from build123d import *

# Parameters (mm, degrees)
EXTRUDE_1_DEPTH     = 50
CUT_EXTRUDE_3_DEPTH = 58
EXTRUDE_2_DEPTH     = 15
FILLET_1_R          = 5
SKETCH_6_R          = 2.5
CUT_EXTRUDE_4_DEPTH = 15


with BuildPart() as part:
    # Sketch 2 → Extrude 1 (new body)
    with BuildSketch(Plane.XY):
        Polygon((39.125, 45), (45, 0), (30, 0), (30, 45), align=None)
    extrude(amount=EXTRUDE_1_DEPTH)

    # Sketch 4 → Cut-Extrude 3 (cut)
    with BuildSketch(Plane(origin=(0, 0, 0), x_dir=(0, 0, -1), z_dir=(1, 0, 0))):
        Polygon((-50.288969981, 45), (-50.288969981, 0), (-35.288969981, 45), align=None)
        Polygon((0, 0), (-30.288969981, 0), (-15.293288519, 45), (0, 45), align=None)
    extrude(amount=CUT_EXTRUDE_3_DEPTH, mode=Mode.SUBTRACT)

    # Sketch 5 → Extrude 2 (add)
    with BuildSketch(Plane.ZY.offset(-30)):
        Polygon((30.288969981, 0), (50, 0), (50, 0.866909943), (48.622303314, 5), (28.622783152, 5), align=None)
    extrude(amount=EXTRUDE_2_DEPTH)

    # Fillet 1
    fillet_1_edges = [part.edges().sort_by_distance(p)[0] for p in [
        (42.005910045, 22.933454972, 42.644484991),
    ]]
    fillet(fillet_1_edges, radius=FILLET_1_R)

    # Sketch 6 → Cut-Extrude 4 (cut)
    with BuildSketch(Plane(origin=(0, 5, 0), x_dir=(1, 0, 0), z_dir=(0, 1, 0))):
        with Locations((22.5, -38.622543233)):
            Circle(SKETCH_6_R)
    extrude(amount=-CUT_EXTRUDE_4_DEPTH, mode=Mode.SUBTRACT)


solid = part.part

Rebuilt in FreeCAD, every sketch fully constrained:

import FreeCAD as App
import Part
import Sketcher

V = App.Vector
Q = App.Units.Quantity


def edges_at(feature, points):
    """Names of the edges that pass closest to the given points."""
    edges = feature.Shape.Edges
    near = lambda p: min(range(len(edges)), key=lambda i: edges[i].distToShape(Part.Vertex(*p))[0])
    return sorted({f"Edge{near(p) + 1}" for p in points})

doc = App.newDocument("Part")
body = doc.addObject("PartDesign::Body", "Body")

# Sketch on XY plane
sketch1 = doc.addObject("Sketcher::SketchObject", "Sketch")
body.addObject(sketch1)
sketch1.AttachmentSupport = (doc.XY_Plane, [""])
sketch1.MapMode = "FlatFace"
sketch1.addGeometry(Part.LineSegment(V(45, 0, 0), V(39, 45, 0)), False)
sketch1.addGeometry(Part.LineSegment(V(39, 45, 0), V(30, 45, 0)), False)
sketch1.addGeometry(Part.LineSegment(V(30, 45, 0), V(30, 0, 0)), False)
sketch1.addGeometry(Part.LineSegment(V(30, 0, 0), V(45, 0, 0)), False)
sketch1.addConstraint(Sketcher.Constraint("Coincident", 0, 2, 1, 1))
sketch1.addConstraint(Sketcher.Constraint("Coincident", 1, 2, 2, 1))
sketch1.addConstraint(Sketcher.Constraint("Coincident", 2, 2, 3, 1))
sketch1.addConstraint(Sketcher.Constraint("Coincident", 3, 2, 0, 1))
sketch1.addConstraint(Sketcher.Constraint("Horizontal", 1))
sketch1.addConstraint(Sketcher.Constraint("Vertical", 2))
sketch1.addConstraint(Sketcher.Constraint("Horizontal", 3))
sketch1.addConstraint(Sketcher.Constraint("PointOnObject", 2, 2, -1))
sketch1.addConstraint(Sketcher.Constraint("DistanceX", 3, 1, 3, 2, 15.0))
sketch1.addConstraint(Sketcher.Constraint("DistanceY", 2, 2, 2, 1, 45.0))
sketch1.addConstraint(Sketcher.Constraint("DistanceX", -1, 1, 1, 2, 30.0))
sketch1.addConstraint(Sketcher.Constraint("DistanceX", 1, 2, 1, 1, 9.125))
pad1 = doc.addObject("PartDesign::Pad", "Pad")
body.addObject(pad1)
pad1.Profile = sketch1
pad1.Length = 50

# Sketch on YZ plane
sketch2 = doc.addObject("Sketcher::SketchObject", "Sketch001")
body.addObject(sketch2)
sketch2.AttachmentSupport = (doc.YZ_Plane, [""])
sketch2.MapMode = "FlatFace"
sketch2.addGeometry(Part.LineSegment(V(45, 50, 0), V(0, 50, 0)), False)
sketch2.addGeometry(Part.LineSegment(V(0, 50, 0), V(45, 35, 0)), False)
sketch2.addGeometry(Part.LineSegment(V(45, 35, 0), V(45, 50, 0)), False)
sketch2.addGeometry(Part.LineSegment(V(0, 30, 0), V(0, 0, 0)), False)
sketch2.addGeometry(Part.LineSegment(V(0, 0, 0), V(45, 0, 0)), False)
sketch2.addGeometry(Part.LineSegment(V(45, 0, 0), V(45, 15, 0)), False)
sketch2.addGeometry(Part.LineSegment(V(45, 15, 0), V(0, 30, 0)), False)
sketch2.addConstraint(Sketcher.Constraint("Coincident", 0, 2, 1, 1))
sketch2.addConstraint(Sketcher.Constraint("Coincident", 1, 2, 2, 1))
sketch2.addConstraint(Sketcher.Constraint("Coincident", 2, 2, 0, 1))
sketch2.addConstraint(Sketcher.Constraint("Coincident", 3, 2, 4, 1))
sketch2.addConstraint(Sketcher.Constraint("Coincident", 4, 2, 5, 1))
sketch2.addConstraint(Sketcher.Constraint("Coincident", 5, 2, 6, 1))
sketch2.addConstraint(Sketcher.Constraint("Coincident", 6, 2, 3, 1))
sketch2.addConstraint(Sketcher.Constraint("Horizontal", 0))
sketch2.addConstraint(Sketcher.Constraint("Vertical", 2))
sketch2.addConstraint(Sketcher.Constraint("Vertical", 3))
sketch2.addConstraint(Sketcher.Constraint("Horizontal", 4))
sketch2.addConstraint(Sketcher.Constraint("Vertical", 5))
sketch2.addConstraint(Sketcher.Constraint("Coincident", 3, 2, -1, 1))
sketch2.addConstraint(Sketcher.Constraint("PointOnObject", 0, 2, -2))
sketch2.addConstraint(Sketcher.Constraint("Vertical", 2, 2, 4, 2))
sketch2.addConstraint(Sketcher.Constraint("DistanceX", 0, 2, 0, 1, 45.0))
sketch2.addConstraint(Sketcher.Constraint("DistanceY", 2, 1, 2, 2, 15.0))
sketch2.addConstraint(Sketcher.Constraint("DistanceY", 6, 2, 0, 2, 20.0))
sketch2.addConstraint(Sketcher.Constraint("Angle", 6, Q("161.57 deg")))
sketch2.addConstraint(Sketcher.Constraint("DistanceY", 3, 2, 3, 1, 30.28897))
pocket1 = doc.addObject("PartDesign::Pocket", "Pocket")
body.addObject(pocket1)
pocket1.Profile = sketch2
pocket1.Length = 58
pocket1.Reversed = True

# Sketch on YZ plane
sketch3 = doc.addObject("Sketcher::SketchObject", "Sketch002")
body.addObject(sketch3)
sketch3.AttachmentSupport = (doc.YZ_Plane, [""])
sketch3.MapMode = "FlatFace"
sketch3.AttachmentOffset = App.Placement(V(0, 0, 30), App.Rotation())
sketch3.addGeometry(Part.LineSegment(V(0, 30.3, 0), V(0, 50, 0)), False)
sketch3.addGeometry(Part.LineSegment(V(0, 50, 0), V(0.9, 50, 0)), False)
sketch3.addGeometry(Part.LineSegment(V(0.9, 50, 0), V(5, 48.6, 0)), False)
sketch3.addGeometry(Part.LineSegment(V(5, 48.6, 0), V(5, 28.6, 0)), False)
sketch3.addGeometry(Part.LineSegment(V(5, 28.6, 0), V(0, 30.3, 0)), False)
sketch3.addConstraint(Sketcher.Constraint("Coincident", 0, 2, 1, 1))
sketch3.addConstraint(Sketcher.Constraint("Coincident", 1, 2, 2, 1))
sketch3.addConstraint(Sketcher.Constraint("Coincident", 2, 2, 3, 1))
sketch3.addConstraint(Sketcher.Constraint("Coincident", 3, 2, 4, 1))
sketch3.addConstraint(Sketcher.Constraint("Coincident", 4, 2, 0, 1))
sketch3.addConstraint(Sketcher.Constraint("Vertical", 0))
sketch3.addConstraint(Sketcher.Constraint("Horizontal", 1))
sketch3.addConstraint(Sketcher.Constraint("Vertical", 3))
sketch3.addConstraint(Sketcher.Constraint("PointOnObject", 0, 2, -2))
sketch3.addConstraint(Sketcher.Constraint("DistanceY", -1, 1, 0, 2, 50.0))
sketch3.addConstraint(Sketcher.Constraint("DistanceX", -1, 1, 2, 2, 5.0))
sketch3.addConstraint(Sketcher.Constraint("Angle", 4, Q("161.57 deg")))
sketch3.addConstraint(Sketcher.Constraint("DistanceX", 1, 1, 1, 2, 0.86691))
sketch3.addConstraint(Sketcher.Constraint("DistanceY", 0, 1, 0, 2, 19.71103))
sketch3.addConstraint(Sketcher.Constraint("DistanceY", 3, 2, 3, 1, 19.99952))
pad2 = doc.addObject("PartDesign::Pad", "Pad001")
body.addObject(pad2)
pad2.Profile = sketch3
pad2.Length = 15
pad2.Reversed = True
doc.recompute()

fillet = doc.addObject("PartDesign::Fillet", "Fillet")
body.addObject(fillet)
fillet.Base = (pad2, edges_at(pad2, [(42.006, 22.933, 42.644)]))
fillet.Radius = 5

# Sketch on XZ plane
sketch4 = doc.addObject("Sketcher::SketchObject", "Sketch003")
body.addObject(sketch4)
sketch4.AttachmentSupport = (doc.XZ_Plane, [""])
sketch4.MapMode = "FlatFace"
sketch4.AttachmentOffset = App.Placement(V(0, 0, -5), App.Rotation())
sketch4.addGeometry(Part.Circle(V(22.5, 38.6, 0), V(0, 0, 1), 2.5), False)
sketch4.addConstraint(Sketcher.Constraint("Diameter", 0, 5.0))
sketch4.addConstraint(Sketcher.Constraint("DistanceX", -1, 1, 0, 3, 22.5))
sketch4.addConstraint(Sketcher.Constraint("DistanceY", -1, 1, 0, 3, 38.622543))
pocket2 = doc.addObject("PartDesign::Pocket", "Pocket001")
body.addObject(pocket2)
pocket2.Profile = sketch4
pocket2.Length = 15
pocket2.Reversed = True

doc.recompute()
